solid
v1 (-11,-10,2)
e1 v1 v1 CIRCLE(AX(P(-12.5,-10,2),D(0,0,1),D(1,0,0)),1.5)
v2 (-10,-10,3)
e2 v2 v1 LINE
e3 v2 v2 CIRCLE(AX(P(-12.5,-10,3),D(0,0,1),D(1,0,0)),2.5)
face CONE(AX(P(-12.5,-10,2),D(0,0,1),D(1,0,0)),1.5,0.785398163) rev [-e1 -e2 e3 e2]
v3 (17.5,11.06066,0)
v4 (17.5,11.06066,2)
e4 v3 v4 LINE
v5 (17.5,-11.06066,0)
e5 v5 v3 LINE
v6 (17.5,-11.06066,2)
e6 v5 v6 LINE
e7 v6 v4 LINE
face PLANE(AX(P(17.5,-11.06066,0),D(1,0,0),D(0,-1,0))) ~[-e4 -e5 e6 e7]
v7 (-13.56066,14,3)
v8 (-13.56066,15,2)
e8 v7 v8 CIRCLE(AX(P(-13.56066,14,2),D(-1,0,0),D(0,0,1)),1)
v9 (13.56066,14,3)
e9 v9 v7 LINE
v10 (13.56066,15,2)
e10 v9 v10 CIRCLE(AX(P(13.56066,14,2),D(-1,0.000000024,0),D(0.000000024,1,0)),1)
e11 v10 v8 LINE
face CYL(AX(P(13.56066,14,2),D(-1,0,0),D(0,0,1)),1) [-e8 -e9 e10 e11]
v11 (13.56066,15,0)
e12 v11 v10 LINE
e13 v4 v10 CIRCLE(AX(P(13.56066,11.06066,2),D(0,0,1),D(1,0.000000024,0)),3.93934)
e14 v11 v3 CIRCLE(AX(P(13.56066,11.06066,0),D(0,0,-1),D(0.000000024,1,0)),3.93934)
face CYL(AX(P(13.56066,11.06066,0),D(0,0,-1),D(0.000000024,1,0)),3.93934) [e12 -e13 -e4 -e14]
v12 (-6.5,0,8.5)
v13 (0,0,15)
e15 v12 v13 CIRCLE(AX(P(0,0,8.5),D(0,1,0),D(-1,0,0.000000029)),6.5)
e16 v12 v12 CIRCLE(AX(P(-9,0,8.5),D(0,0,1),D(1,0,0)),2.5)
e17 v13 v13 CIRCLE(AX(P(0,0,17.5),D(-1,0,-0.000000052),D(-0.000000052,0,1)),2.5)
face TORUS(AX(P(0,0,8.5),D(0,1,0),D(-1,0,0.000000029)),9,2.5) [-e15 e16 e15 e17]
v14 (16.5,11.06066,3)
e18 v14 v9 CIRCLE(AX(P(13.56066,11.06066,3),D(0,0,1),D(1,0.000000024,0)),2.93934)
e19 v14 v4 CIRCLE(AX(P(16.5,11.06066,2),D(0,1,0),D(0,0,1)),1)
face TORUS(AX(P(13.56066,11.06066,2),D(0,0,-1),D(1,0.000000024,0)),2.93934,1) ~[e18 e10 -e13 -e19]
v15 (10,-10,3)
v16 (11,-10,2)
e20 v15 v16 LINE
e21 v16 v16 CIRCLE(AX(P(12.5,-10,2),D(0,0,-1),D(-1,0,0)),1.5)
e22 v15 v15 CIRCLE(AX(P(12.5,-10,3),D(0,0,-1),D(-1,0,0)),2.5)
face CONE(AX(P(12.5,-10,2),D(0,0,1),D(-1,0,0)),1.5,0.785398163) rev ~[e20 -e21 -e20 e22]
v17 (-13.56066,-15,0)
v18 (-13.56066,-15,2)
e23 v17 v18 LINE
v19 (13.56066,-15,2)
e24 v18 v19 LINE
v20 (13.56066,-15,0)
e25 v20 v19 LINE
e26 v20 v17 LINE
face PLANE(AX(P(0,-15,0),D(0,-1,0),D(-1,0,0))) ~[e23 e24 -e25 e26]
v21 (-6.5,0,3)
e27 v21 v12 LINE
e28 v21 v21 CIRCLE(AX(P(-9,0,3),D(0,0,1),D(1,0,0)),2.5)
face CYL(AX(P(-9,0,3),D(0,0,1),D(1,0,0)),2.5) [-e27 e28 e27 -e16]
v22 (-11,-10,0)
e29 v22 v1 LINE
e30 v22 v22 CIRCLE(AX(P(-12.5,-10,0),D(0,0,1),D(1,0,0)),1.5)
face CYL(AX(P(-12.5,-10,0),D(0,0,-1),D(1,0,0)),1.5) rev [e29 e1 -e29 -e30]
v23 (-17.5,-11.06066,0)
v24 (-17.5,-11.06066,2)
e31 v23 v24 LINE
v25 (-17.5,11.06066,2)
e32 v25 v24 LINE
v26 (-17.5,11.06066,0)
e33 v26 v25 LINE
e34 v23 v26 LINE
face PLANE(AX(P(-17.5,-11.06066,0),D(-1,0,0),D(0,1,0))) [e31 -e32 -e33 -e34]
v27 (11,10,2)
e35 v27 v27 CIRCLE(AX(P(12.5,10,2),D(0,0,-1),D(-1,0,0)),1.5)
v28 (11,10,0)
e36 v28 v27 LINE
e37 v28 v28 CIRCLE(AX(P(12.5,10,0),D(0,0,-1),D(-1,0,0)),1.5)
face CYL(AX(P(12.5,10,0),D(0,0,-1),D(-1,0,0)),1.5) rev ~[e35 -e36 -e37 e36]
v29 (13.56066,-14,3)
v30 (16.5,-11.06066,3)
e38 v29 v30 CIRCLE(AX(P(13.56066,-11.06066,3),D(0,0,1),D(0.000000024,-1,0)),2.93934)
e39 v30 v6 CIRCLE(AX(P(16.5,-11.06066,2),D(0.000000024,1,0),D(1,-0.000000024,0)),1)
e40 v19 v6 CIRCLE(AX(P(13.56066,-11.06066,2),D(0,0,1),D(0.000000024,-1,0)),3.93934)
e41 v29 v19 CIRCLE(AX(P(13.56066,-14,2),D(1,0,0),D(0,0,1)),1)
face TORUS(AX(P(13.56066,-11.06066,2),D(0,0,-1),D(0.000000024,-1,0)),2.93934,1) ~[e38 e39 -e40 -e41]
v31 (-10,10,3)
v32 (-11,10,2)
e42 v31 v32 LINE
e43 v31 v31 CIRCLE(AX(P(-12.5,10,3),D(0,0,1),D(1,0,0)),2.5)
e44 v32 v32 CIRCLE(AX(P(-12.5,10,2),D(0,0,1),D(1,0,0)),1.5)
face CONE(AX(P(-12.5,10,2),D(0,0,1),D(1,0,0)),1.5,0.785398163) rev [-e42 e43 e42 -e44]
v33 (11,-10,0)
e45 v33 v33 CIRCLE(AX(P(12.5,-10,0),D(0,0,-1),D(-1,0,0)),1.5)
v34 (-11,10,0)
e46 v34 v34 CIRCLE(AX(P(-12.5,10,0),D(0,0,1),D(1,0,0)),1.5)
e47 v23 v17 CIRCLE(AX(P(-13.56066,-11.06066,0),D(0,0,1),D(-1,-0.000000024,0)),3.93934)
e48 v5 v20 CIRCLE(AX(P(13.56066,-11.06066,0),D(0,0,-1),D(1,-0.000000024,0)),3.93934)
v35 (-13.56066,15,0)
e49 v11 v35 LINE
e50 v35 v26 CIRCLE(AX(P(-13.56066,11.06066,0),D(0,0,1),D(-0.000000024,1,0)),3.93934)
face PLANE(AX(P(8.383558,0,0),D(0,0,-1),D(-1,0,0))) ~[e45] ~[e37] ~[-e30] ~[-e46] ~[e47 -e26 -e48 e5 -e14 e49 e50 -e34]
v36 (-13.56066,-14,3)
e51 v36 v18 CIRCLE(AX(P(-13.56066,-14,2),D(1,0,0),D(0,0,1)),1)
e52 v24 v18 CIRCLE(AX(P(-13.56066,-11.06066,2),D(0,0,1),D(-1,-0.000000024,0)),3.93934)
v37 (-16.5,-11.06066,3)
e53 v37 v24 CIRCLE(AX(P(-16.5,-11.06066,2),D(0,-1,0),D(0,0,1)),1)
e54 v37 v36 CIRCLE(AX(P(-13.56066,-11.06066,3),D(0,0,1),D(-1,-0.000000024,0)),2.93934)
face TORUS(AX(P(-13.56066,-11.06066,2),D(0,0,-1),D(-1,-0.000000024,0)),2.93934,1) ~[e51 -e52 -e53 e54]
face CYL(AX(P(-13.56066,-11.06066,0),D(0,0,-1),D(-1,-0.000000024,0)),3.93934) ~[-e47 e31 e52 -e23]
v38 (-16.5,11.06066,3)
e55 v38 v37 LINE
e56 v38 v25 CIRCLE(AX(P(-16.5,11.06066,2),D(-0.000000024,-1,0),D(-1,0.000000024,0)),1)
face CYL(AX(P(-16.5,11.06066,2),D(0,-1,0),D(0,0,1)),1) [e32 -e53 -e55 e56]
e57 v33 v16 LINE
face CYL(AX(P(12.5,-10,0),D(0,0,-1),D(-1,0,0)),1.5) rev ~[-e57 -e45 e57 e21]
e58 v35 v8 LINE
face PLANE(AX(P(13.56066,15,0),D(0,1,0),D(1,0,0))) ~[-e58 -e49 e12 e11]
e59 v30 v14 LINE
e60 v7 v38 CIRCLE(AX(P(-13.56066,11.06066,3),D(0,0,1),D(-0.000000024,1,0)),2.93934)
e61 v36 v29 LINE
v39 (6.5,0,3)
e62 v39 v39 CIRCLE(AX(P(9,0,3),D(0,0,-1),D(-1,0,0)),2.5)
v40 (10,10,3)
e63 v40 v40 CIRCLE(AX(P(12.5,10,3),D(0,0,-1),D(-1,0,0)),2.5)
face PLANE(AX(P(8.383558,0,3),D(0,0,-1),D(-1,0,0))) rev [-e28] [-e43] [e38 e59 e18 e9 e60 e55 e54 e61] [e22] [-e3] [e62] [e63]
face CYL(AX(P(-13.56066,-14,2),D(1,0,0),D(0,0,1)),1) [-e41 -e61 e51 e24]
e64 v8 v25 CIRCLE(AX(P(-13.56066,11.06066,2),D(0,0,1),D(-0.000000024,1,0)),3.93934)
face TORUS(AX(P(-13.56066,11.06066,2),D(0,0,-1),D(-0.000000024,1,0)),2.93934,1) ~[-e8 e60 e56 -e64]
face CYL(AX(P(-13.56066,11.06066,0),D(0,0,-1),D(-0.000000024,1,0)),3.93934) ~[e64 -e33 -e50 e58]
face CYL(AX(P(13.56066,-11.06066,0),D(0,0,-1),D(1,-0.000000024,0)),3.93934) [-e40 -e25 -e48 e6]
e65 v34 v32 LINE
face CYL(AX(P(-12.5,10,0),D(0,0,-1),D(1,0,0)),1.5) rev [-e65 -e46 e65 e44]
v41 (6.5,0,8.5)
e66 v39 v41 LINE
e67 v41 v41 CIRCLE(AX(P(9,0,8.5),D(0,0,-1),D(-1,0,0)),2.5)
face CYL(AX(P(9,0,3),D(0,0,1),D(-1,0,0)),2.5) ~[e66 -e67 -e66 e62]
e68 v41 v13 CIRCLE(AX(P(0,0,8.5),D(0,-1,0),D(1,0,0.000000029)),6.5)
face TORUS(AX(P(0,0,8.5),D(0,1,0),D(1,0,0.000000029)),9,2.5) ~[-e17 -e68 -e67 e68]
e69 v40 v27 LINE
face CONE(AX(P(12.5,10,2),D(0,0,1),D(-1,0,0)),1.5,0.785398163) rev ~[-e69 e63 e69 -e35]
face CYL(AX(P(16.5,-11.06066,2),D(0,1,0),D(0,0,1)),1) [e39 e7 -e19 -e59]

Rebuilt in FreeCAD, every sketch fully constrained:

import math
import FreeCAD as App
import Part
import Sketcher

V = App.Vector


def edges_at(feature, points):
    """Names of the edges that pass closest to the given points."""
    edges = feature.Shape.Edges
    near = lambda p: min(range(len(edges)), key=lambda i: edges[i].distToShape(Part.Vertex(*p))[0])
    return sorted({f"Edge{near(p) + 1}" for p in points})

doc = App.newDocument("Part")
body = doc.addObject("PartDesign::Body", "Body")

sketch1 = body.newObject("Sketcher::SketchObject", "Sketch")
sketch1.AttachmentSupport = (doc.getObject("XY_Plane"), [""])
sketch1.MapMode = "FlatFace"
sketch1.addGeometry([
    Part.LineSegment(V(0, -15, 0), V(0, 15, 0)),
    Part.LineSegment(V(0, 15, 0), V(-13.6, 15, 0)),
    Part.ArcOfCircle(Part.Circle(V(-13.6, 11.1, 0), V(0, 0, 1), 3.9), math.radians(90), math.radians(180)),
    Part.LineSegment(V(-17.5, 11.1, 0), V(-17.5, -11.1, 0)),
    Part.ArcOfCircle(Part.Circle(V(-13.6, -11.1, 0), V(0, 0, 1), 3.9), math.radians(-180), math.radians(-90)),
    Part.LineSegment(V(-13.6, -15, 0), V(0, -15, 0)),
    Part.Circle(V(-12.5, -10, 0), V(0, 0, 1), 1.5),
    Part.Circle(V(-12.5, 10, 0), V(0, 0, 1), 1.5),
], False)
sketch1.addConstraint([
    Sketcher.Constraint("Coincident", 0, 2, 1, 1),
    Sketcher.Constraint("Tangent", 1, 2, 2, 1),
    Sketcher.Constraint("Tangent", 2, 2, 3, 1),
    Sketcher.Constraint("Tangent", 3, 2, 4, 1),
    Sketcher.Constraint("Tangent", 4, 2, 5, 1),
    Sketcher.Constraint("Coincident", 5, 2, 0, 1),
    Sketcher.Constraint("Vertical", 0),
    Sketcher.Constraint("Horizontal", 1),
    Sketcher.Constraint("Vertical", 3),
    Sketcher.Constraint("Horizontal", 5),
    Sketcher.Constraint("Equal", 2, 4),
    Sketcher.Constraint("Equal", 6, 7),
    Sketcher.Constraint("Symmetric", 0, 2, 5, 2, -1, 1),
    Sketcher.Constraint("Symmetric", 6, 3, 7, 3, -1),
    Sketcher.Constraint("Diameter", 6, 3.0),
    Sketcher.Constraint("DistanceY", 0, 1, 0, 2, 30.0),
    Sketcher.Constraint("DistanceY", 6, 3, -1, 1, 10.0),
    Sketcher.Constraint("DistanceX", 2, 2, 7, 3, 5.0),
    Sketcher.Constraint("DistanceX", 6, 3, -1, 1, 12.5),
    Sketcher.Constraint("Radius", 2, 3.93934),
])
pad1 = body.newObject("PartDesign::Pad", "Pad")
pad1.Profile = sketch1
pad1.Length = 3

sketch2 = body.newObject("Sketcher::SketchObject", "Sketch001")
sketch2.AttachmentSupport = (doc.getObject("XY_Plane"), [""])
sketch2.MapMode = "FlatFace"
sketch2.AttachmentOffset = App.Placement(V(0, 0, 3), App.Rotation())
sketch2.addGeometry(Part.Circle(V(-9, 0, 0), V(0, 0, 1), 2.5), False)
sketch2.addConstraint([
    Sketcher.Constraint("PointOnObject", 0, 3, -1),
    Sketcher.Constraint("Diameter", 0, 5.0),
    Sketcher.Constraint("DistanceX", 0, 3, -1, 1, 9.0),
])

sketch3 = body.newObject("Sketcher::SketchObject", "Sketch002")
sketch3.AttachmentSupport = (doc.getObject("XZ_Plane"), [""])
sketch3.MapMode = "FlatFace"
sketch3.addGeometry([
    Part.LineSegment(V(-6, 3, 0), V(-6, 8, 0)),
    Part.ArcOfCircle(Part.Circle(V(0, 8, 0), V(0, 0, 1), 7), math.radians(90), math.radians(180)),
], False)
sketch3.addConstraint([
    Sketcher.Constraint("Tangent", 0, 2, 1, 2),
    Sketcher.Constraint("Vertical", 0),
    Sketcher.Constraint("PointOnObject", 1, 3, -2),
    Sketcher.Constraint("PointOnObject", 1, 1, -2),
    Sketcher.Constraint("Radius", 1, 6.5),
    Sketcher.Constraint("DistanceY", 0, 1, 0, 2, 5.5),
    Sketcher.Constraint("DistanceY", -1, 1, 0, 1, 3.0),
])
doc.recompute()

additivepipe = body.newObject("PartDesign::AdditivePipe", "AdditivePipe")
additivepipe.Profile = sketch2
additivepipe.Spine = (sketch3, ["Edge1", "Edge2"])
doc.recompute()

mirrored = body.newObject("PartDesign::Mirrored", "Mirrored")
mirrored.Originals = [pad1, additivepipe]
mirrored.MirrorPlane = (doc.getObject("YZ_Plane"), [""])
body.Tip = mirrored
doc.recompute()

chamfer = body.newObject("PartDesign::Chamfer", "Chamfer")
chamfer.Base = (mirrored, edges_at(mirrored, [
    (14, 10, 3),
    (-14, 10, 3),
    (-14, -10, 3),
    (14, -10, 3),
]))
chamfer.Size = 1
doc.recompute()

fillet = body.newObject("PartDesign::Fillet", "Fillet")
fillet.Base = (chamfer, edges_at(chamfer, [(0, -15, 3)]))
fillet.Radius = 1

doc.recompute()
